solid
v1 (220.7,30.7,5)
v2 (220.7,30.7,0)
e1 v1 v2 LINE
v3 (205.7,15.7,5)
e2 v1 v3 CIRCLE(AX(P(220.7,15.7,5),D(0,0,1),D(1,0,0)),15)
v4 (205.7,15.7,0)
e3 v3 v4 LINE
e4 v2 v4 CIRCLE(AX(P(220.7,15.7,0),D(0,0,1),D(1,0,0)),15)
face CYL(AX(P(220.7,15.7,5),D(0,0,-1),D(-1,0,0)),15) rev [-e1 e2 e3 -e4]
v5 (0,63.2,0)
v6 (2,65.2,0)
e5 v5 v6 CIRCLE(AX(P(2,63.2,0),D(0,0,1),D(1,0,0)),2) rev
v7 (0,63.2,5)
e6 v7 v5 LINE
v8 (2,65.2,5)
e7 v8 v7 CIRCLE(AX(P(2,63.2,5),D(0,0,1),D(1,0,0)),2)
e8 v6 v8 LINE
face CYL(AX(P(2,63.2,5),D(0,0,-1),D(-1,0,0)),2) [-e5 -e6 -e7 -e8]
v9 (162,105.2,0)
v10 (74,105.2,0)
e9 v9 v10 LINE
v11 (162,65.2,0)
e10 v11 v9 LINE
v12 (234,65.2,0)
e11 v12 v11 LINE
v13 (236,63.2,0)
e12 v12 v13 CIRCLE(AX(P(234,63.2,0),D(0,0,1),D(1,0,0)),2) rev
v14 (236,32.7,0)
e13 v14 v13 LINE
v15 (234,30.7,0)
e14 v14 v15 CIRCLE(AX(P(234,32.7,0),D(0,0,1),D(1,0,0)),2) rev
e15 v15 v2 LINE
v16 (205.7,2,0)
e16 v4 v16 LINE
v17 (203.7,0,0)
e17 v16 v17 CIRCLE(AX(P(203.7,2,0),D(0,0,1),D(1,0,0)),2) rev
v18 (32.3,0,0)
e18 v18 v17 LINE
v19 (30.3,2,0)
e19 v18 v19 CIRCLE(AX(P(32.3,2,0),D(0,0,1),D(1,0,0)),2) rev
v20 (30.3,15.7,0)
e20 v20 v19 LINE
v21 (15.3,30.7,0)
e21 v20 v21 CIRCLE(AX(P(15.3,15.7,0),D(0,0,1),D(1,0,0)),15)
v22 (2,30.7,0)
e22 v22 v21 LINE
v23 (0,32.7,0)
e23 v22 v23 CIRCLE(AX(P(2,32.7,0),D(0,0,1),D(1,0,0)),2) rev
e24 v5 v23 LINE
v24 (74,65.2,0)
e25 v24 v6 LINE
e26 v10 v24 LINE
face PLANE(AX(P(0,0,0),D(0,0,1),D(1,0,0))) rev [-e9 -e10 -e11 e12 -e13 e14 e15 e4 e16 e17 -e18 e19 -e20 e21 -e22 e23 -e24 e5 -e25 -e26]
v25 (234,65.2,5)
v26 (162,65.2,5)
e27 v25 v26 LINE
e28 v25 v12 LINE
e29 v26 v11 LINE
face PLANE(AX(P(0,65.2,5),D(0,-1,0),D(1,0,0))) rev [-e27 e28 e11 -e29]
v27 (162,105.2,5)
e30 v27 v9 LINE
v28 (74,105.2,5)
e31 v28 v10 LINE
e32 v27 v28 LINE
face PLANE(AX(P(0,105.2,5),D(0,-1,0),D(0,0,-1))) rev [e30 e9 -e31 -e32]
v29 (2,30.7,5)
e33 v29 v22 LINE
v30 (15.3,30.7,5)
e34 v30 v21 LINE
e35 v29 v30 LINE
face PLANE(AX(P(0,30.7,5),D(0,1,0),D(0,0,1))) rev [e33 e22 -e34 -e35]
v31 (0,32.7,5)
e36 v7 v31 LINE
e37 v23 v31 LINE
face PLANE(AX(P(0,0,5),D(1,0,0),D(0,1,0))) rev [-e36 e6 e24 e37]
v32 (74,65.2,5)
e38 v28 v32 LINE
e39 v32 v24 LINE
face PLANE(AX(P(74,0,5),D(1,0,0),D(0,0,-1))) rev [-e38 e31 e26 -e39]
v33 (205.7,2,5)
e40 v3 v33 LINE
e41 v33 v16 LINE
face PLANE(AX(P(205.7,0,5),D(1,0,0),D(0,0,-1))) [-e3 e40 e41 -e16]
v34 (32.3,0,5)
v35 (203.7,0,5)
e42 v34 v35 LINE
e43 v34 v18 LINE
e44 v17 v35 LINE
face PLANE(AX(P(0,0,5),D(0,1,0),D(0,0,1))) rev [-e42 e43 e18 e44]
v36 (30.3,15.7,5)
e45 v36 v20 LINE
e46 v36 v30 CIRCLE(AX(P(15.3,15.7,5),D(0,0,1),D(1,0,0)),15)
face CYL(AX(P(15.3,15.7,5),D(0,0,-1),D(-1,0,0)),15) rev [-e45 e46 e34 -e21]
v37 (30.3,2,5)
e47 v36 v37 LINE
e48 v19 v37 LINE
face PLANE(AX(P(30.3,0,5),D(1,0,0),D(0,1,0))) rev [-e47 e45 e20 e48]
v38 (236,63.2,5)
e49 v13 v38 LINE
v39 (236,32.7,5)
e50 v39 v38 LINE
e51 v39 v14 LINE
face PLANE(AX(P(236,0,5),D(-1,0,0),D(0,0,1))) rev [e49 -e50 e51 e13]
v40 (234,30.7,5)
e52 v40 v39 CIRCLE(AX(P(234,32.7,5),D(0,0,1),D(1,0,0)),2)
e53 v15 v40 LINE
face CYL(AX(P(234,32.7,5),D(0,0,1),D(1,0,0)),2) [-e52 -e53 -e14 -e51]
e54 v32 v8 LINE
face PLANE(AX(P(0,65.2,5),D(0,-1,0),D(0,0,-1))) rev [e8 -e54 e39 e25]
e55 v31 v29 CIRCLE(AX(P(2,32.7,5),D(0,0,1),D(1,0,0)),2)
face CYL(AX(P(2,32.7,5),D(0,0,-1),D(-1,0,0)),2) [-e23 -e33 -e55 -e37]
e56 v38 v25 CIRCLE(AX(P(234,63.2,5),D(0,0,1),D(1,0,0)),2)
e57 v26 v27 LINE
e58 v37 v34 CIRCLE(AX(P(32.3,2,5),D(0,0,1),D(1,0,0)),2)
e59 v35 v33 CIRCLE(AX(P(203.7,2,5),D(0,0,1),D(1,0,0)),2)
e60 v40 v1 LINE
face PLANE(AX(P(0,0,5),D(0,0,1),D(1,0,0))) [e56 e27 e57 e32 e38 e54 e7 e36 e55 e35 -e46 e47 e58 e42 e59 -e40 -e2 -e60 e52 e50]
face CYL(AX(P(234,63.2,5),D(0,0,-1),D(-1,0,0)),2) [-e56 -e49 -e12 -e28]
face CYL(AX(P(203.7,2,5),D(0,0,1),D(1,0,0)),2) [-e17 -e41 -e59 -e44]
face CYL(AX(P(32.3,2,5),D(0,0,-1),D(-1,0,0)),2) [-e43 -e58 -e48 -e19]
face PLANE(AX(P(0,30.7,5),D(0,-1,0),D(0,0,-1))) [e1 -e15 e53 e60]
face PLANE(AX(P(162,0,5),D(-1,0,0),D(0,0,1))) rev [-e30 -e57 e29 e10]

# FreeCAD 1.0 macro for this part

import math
import FreeCAD as App
import Part
import Sketcher
Q = App.Units.Quantity


def edges_at(feature, points):
    """Names of the edges that pass closest to the given points."""
    edges = feature.Shape.Edges
    near = lambda p: min(range(len(edges)), key=lambda i: edges[i].distToShape(Part.Vertex(*p))[0])
    return sorted({f"Edge{near(p) + 1}" for p in points})

doc = App.newDocument("Part")
body = doc.addObject("PartDesign::Body", "Body")

# Sketch on XY plane
sketch1 = body.newObject("Sketcher::SketchObject", "Sketch")
sketch1.AttachmentSupport = (doc.getObject("XY_Plane"), [""])
sketch1.MapMode = "FlatFace"
sketch1.addGeometry(Part.LineSegment(App.Vector(30, 0, 0), App.Vector(206, 0, 0)), False)
sketch1.addGeometry(Part.LineSegment(App.Vector(206, 0, 0), App.Vector(206, 16, 0)), False)
sketch1.addGeometry(Part.ArcOfCircle(Part.Circle(App.Vector(221, 16, 0), App.Vector(0, 0, 1), 15), math.radians(90), math.radians(180)), False)
sketch1.addGeometry(Part.LineSegment(App.Vector(221, 31, 0), App.Vector(236, 31, 0)), False)
sketch1.addGeometry(Part.LineSegment(App.Vector(236, 31, 0), App.Vector(236, 65, 0)), False)
sketch1.addGeometry(Part.LineSegment(App.Vector(236, 65, 0), App.Vector(162, 65, 0)), False)
sketch1.addGeometry(Part.LineSegment(App.Vector(162, 65, 0), App.Vector(162, 105, 0)), False)
sketch1.addGeometry(Part.LineSegment(App.Vector(162, 105, 0), App.Vector(74, 105, 0)), False)
sketch1.addGeometry(Part.LineSegment(App.Vector(74, 105, 0), App.Vector(74, 65, 0)), False)
sketch1.addGeometry(Part.LineSegment(App.Vector(74, 65, 0), App.Vector(0, 65, 0)), False)
sketch1.addGeometry(Part.LineSegment(App.Vector(0, 65, 0), App.Vector(0, 31, 0)), False)
sketch1.addGeometry(Part.LineSegment(App.Vector(0, 31, 0), App.Vector(15, 31, 0)), False)
sketch1.addGeometry(Part.ArcOfCircle(Part.Circle(App.Vector(15, 16, 0), App.Vector(0, 0, 1), 15), math.radians(0), math.radians(90)), False)
sketch1.addGeometry(Part.LineSegment(App.Vector(30, 16, 0), App.Vector(30, 0, 0)), False)
sketch1.addConstraint(Sketcher.Constraint("Coincident", 0, 2, 1, 1))
sketch1.addConstraint(Sketcher.Constraint("Tangent", 1, 2, 2, 2))
sketch1.addConstraint(Sketcher.Constraint("Tangent", 2, 1, 3, 1))
sketch1.addConstraint(Sketcher.Constraint("Coincident", 3, 2, 4, 1))
sketch1.addConstraint(Sketcher.Constraint("Coincident", 4, 2, 5, 1))
sketch1.addConstraint(Sketcher.Constraint("Coincident", 5, 2, 6, 1))
sketch1.addConstraint(Sketcher.Constraint("Coincident", 6, 2, 7, 1))
sketch1.addConstraint(Sketcher.Constraint("Coincident", 7, 2, 8, 1))
sketch1.addConstraint(Sketcher.Constraint("Coincident", 8, 2, 9, 1))
sketch1.addConstraint(Sketcher.Constraint("Coincident", 9, 2, 10, 1))
sketch1.addConstraint(Sketcher.Constraint("Coincident", 10, 2, 11, 1))
sketch1.addConstraint(Sketcher.Constraint("Tangent", 11, 2, 12, 2))
sketch1.addConstraint(Sketcher.Constraint("Tangent", 12, 1, 13, 1))
sketch1.addConstraint(Sketcher.Constraint("Coincident", 13, 2, 0, 1))
sketch1.addConstraint(Sketcher.Constraint("Horizontal", 0))
sketch1.addConstraint(Sketcher.Constraint("Vertical", 1))
sketch1.addConstraint(Sketcher.Constraint("Horizontal", 3))
sketch1.addConstraint(Sketcher.Constraint("Vertical", 4))
sketch1.addConstraint(Sketcher.Constraint("Horizontal", 5))
sketch1.addConstraint(Sketcher.Constraint("Vertical", 6))
sketch1.addConstraint(Sketcher.Constraint("Horizontal", 7))
sketch1.addConstraint(Sketcher.Constraint("Vertical", 8))
sketch1.addConstraint(Sketcher.Constraint("Horizontal", 9))
sketch1.addConstraint(Sketcher.Constraint("Vertical", 10))
sketch1.addConstraint(Sketcher.Constraint("Horizontal", 11))
sketch1.addConstraint(Sketcher.Constraint("Vertical", 13))
sketch1.addConstraint(Sketcher.Constraint("Equal", 2, 12))
sketch1.addConstraint(Sketcher.Constraint("PointOnObject", 0, 2, -1))
sketch1.addConstraint(Sketcher.Constraint("PointOnObject", 9, 2, -2))
sketch1.addConstraint(Sketcher.Constraint("Horizontal", 2, 3, 12, 3))
sketch1.addConstraint(Sketcher.Constraint("Horizontal", 5, 2, 8, 2))
sketch1.addConstraint(Sketcher.Constraint("Equal", 5, 9))
sketch1.addConstraint(Sketcher.Constraint("Equal", 3, 11))
sketch1.addConstraint(Sketcher.Constraint("Radius", 2, Q("15 mm")))
sketch1.addConstraint(Sketcher.Constraint("DistanceX", 5, 2, 5, 1, Q("74 mm")))
sketch1.addConstraint(Sketcher.Constraint("DistanceX", 7, 2, 7, 1, Q("88 mm")))
sketch1.addConstraint(Sketcher.Constraint("DistanceY", 6, 1, 6, 2, Q("40 mm")))
sketch1.addConstraint(Sketcher.Constraint("DistanceX", 0, 1, 0, 2, Q("175.4 mm")))
sketch1.addConstraint(Sketcher.Constraint("DistanceY", 1, 1, 1, 2, Q("15.7 mm")))
sketch1.addConstraint(Sketcher.Constraint("DistanceY", 4, 1, 4, 2, Q("34.5 mm")))
pad1 = body.newObject("PartDesign::Pad", "Pad")
pad1.Profile = sketch1
pad1.Length = 5
doc.recompute()

fillet = body.newObject("PartDesign::Fillet", "Fillet")
fillet.Base = (pad1, edges_at(pad1, [
    (205.7, 0, 2.5),
    (30.3, 0, 2.5),
    (0, 30.7, 2.5),
    (0, 65.2, 2.5),
    (236, 65.2, 2.5),
    (236, 30.7, 2.5),
]))
fillet.Radius = 2

doc.recompute()
